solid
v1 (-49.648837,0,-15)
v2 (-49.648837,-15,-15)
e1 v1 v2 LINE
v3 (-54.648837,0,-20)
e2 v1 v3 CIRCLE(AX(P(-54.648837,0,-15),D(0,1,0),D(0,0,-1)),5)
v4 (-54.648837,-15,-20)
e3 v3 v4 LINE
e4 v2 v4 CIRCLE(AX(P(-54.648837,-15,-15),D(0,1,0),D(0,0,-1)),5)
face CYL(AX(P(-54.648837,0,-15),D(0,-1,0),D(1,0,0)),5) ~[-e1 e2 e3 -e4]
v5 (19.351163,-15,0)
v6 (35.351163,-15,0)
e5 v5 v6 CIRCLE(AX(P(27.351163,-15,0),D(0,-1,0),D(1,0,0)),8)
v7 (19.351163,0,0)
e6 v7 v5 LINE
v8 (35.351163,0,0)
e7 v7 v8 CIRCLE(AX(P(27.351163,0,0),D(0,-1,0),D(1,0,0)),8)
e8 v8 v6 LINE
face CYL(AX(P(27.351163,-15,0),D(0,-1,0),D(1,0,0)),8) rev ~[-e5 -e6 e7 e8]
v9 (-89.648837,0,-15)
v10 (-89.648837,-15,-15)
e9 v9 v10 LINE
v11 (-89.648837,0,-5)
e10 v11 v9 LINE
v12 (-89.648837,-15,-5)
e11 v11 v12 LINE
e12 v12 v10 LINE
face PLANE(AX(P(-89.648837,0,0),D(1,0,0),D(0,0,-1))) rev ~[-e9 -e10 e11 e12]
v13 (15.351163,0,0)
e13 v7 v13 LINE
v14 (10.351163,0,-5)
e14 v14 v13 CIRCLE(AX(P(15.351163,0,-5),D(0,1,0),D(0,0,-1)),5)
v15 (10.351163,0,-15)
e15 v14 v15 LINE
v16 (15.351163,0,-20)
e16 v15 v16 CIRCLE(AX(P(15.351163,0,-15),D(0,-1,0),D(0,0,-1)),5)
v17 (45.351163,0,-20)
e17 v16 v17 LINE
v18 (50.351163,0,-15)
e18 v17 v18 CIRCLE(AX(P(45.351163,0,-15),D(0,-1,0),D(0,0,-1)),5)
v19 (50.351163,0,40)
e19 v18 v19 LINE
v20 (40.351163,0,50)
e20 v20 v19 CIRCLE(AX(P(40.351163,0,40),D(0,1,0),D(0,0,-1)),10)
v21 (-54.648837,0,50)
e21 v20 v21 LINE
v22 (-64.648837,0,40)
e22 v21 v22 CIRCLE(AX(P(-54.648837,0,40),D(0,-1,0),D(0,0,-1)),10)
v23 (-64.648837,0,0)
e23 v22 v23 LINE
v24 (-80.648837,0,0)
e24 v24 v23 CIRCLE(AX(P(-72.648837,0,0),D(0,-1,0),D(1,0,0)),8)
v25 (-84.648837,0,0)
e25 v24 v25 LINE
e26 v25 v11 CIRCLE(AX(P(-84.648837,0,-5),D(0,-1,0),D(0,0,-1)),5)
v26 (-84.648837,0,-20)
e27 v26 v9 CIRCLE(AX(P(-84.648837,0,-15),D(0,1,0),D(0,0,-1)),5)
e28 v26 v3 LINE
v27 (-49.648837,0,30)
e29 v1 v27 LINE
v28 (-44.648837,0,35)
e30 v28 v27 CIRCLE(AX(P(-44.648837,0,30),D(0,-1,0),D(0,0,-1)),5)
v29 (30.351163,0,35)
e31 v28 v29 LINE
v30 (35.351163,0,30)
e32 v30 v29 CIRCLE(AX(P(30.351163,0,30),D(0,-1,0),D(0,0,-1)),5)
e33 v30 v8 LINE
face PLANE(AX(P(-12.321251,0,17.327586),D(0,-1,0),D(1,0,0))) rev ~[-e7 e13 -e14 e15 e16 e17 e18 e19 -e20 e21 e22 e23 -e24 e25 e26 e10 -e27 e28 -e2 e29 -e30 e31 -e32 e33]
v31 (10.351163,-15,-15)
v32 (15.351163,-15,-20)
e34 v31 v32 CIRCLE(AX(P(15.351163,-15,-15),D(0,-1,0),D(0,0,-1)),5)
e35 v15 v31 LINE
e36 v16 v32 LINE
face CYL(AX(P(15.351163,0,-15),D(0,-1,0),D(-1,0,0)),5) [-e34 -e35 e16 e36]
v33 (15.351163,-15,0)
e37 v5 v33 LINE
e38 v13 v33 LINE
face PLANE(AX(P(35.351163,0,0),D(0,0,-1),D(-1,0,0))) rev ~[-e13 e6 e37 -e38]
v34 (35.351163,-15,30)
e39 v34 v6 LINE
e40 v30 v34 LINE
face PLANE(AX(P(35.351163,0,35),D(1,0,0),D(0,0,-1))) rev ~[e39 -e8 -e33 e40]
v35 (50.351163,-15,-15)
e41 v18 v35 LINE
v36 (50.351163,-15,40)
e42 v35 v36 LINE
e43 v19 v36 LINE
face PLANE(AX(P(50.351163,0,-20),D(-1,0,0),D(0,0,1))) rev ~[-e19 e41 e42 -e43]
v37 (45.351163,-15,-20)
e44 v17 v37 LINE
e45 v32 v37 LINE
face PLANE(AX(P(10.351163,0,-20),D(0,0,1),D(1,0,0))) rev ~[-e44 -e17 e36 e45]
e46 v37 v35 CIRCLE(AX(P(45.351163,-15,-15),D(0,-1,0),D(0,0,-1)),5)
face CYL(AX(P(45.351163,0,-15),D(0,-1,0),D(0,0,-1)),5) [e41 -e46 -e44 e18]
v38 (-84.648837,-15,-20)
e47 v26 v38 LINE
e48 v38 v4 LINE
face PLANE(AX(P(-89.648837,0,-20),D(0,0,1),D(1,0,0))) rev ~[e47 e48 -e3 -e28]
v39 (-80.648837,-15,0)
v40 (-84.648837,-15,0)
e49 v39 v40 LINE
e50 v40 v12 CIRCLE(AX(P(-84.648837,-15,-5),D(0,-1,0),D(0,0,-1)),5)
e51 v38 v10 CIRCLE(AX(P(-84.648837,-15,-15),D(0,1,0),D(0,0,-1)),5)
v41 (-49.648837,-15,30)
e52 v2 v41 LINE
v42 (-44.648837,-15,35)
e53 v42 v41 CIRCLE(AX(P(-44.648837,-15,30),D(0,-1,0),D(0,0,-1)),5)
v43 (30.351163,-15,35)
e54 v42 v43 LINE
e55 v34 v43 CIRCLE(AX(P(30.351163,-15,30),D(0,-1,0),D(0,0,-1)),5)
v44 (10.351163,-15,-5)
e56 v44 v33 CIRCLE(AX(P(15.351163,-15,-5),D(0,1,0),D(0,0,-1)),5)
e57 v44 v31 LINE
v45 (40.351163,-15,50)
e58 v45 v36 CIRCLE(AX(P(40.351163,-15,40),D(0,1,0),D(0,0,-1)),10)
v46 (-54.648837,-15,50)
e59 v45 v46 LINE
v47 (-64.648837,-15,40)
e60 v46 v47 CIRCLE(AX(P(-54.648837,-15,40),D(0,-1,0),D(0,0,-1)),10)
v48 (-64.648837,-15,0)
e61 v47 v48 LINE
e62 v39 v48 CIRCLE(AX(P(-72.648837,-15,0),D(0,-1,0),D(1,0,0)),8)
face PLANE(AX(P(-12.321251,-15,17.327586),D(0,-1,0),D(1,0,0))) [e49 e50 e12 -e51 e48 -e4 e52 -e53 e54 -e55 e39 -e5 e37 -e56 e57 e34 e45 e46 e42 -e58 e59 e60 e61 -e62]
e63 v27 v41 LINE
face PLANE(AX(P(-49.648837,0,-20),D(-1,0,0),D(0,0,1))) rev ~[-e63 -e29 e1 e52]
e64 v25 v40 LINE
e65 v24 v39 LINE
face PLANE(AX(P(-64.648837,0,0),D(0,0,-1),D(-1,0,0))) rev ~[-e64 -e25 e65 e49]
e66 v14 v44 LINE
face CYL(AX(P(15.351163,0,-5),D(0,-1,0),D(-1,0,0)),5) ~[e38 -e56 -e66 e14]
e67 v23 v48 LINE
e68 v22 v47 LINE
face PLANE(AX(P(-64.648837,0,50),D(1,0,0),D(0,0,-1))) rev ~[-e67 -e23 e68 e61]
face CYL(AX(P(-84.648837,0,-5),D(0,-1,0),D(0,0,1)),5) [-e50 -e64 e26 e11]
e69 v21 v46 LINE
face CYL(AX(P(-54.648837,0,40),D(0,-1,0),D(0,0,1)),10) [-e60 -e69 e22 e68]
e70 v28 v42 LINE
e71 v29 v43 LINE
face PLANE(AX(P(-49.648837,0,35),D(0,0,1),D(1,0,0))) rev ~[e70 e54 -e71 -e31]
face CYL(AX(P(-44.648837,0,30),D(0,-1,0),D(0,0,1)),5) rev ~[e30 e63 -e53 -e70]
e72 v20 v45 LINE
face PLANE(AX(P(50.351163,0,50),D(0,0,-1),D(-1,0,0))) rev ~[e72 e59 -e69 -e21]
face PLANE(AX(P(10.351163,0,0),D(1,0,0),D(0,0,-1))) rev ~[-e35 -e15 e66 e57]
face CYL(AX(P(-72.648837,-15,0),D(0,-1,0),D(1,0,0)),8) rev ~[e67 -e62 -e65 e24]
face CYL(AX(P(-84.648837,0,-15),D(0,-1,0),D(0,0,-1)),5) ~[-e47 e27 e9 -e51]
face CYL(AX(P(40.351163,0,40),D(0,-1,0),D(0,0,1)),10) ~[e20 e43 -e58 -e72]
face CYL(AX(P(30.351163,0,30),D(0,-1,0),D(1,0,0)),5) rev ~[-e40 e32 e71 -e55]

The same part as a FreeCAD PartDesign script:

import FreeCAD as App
import Part
import Sketcher
from FreeCAD import Vector


def edges_at(feature, points):
    """Names of the edges that pass closest to the given points."""
    edges = feature.Shape.Edges
    near = lambda p: min(range(len(edges)), key=lambda i: edges[i].distToShape(Part.Vertex(*p))[0])
    return sorted({f"Edge{near(p) + 1}" for p in points})

doc = App.newDocument("Part")
body = doc.addObject("PartDesign::Body", "Body")

sketch1 = body.newObject("Sketcher::SketchObject", "Sketch")
sketch1.AttachmentSupport = (doc.getObject("XZ_Plane"), [""])
sketch1.MapMode = "FlatFace"
sketch1.addGeometry([
    Part.LineSegment(Vector(50, 50, 0), Vector(-65, 50, 0)),
    Part.LineSegment(Vector(-65, 50, 0), Vector(-65, 0, 0)),
    Part.LineSegment(Vector(-65, 0, 0), Vector(-90, 0, 0)),
    Part.LineSegment(Vector(-90, 0, 0), Vector(-90, -20, 0)),
    Part.LineSegment(Vector(-90, -20, 0), Vector(-50, -20, 0)),
    Part.LineSegment(Vector(-50, -20, 0), Vector(-50, 35, 0)),
    Part.LineSegment(Vector(-50, 35, 0), Vector(35, 35, 0)),
    Part.LineSegment(Vector(35, 35, 0), Vector(35, 0, 0)),
    Part.LineSegment(Vector(35, 0, 0), Vector(10, 0, 0)),
    Part.LineSegment(Vector(10, 0, 0), Vector(10, -20, 0)),
    Part.LineSegment(Vector(10, -20, 0), Vector(50, -20, 0)),
    Part.LineSegment(Vector(50, -20, 0), Vector(50, 50, 0)),
], False)
sketch1.addConstraint([
    Sketcher.Constraint("Coincident", 0, 2, 1, 1),
    Sketcher.Constraint("Coincident", 1, 2, 2, 1),
    Sketcher.Constraint("Coincident", 2, 2, 3, 1),
    Sketcher.Constraint("Coincident", 3, 2, 4, 1),
    Sketcher.Constraint("Coincident", 4, 2, 5, 1),
    Sketcher.Constraint("Coincident", 5, 2, 6, 1),
    Sketcher.Constraint("Coincident", 6, 2, 7, 1),
    Sketcher.Constraint("Coincident", 7, 2, 8, 1),
    Sketcher.Constraint("Coincident", 8, 2, 9, 1),
    Sketcher.Constraint("Coincident", 9, 2, 10, 1),
    Sketcher.Constraint("Coincident", 10, 2, 11, 1),
    Sketcher.Constraint("Coincident", 11, 2, 0, 1),
    Sketcher.Constraint("Horizontal", 0),
    Sketcher.Constraint("Vertical", 1),
    Sketcher.Constraint("Horizontal", 2),
    Sketcher.Constraint("Vertical", 3),
    Sketcher.Constraint("Horizontal", 4),
    Sketcher.Constraint("Vertical", 5),
    Sketcher.Constraint("Horizontal", 6),
    Sketcher.Constraint("Vertical", 7),
    Sketcher.Constraint("Horizontal", 8),
    Sketcher.Constraint("Vertical", 9),
    Sketcher.Constraint("Horizontal", 10),
    Sketcher.Constraint("Vertical", 11),
    Sketcher.Constraint("PointOnObject", 1, 2, -1),
    Sketcher.Constraint("PointOnObject", 7, 2, -1),
    Sketcher.Constraint("Horizontal", 4, 2, 9, 2),
    Sketcher.Constraint("Equal", 2, 8),
    Sketcher.Constraint("Equal", 4, 10),
    Sketcher.Constraint("DistanceX", 0, 2, 0, 1, 115.0),
    Sketcher.Constraint("DistanceX", 2, 2, 2, 1, 25.0),
    Sketcher.Constraint("DistanceX", 4, 1, 4, 2, 40.0),
    Sketcher.Constraint("DistanceY", 1, 2, 1, 1, 50.0),
    Sketcher.Constraint("DistanceY", 3, 2, 3, 1, 20.0),
    Sketcher.Constraint("DistanceY", 5, 1, 5, 2, 55.0),
    Sketcher.Constraint("DistanceX", 0, 2, -1, 1, 64.648837),
])
pad1 = body.newObject("PartDesign::Pad", "Pad")
pad1.Profile = sketch1
pad1.Length = 15

sketch2 = body.newObject("Sketcher::SketchObject", "Sketch001")
sketch2.AttachmentSupport = (doc.getObject("XZ_Plane"), [""])
sketch2.MapMode = "FlatFace"
sketch2.AttachmentOffset = App.Placement(Vector(0, 0, 15), App.Rotation())
sketch2.addGeometry([
    Part.Circle(Vector(-73, 0, 0), Vector(0, 0, 1), 8),
    Part.Circle(Vector(27, 0, 0), Vector(0, 0, 1), 8),
], False)
sketch2.addConstraint([
    Sketcher.Constraint("Equal", 0, 1),
    Sketcher.Constraint("PointOnObject", 0, 3, -1),
    Sketcher.Constraint("PointOnObject", 1, 3, -1),
    Sketcher.Constraint("Diameter", 0, 16.0),
    Sketcher.Constraint("DistanceX", 0, 3, 1, 3, 100.0),
    Sketcher.Constraint("DistanceX", 0, 3, -1, 1, 72.648837),
])
pocket1 = body.newObject("PartDesign::Pocket", "Pocket")
pocket1.Profile = sketch2
pocket1.Type = "ThroughAll"
doc.recompute()

fillet = body.newObject("PartDesign::Fillet", "Fillet")
fillet.Base = (pocket1, edges_at(pocket1, [(-64.649, -7.5, 50), (50.351, -7.5, 50)]))
fillet.Radius = 10
doc.recompute()

fillet2 = body.newObject("PartDesign::Fillet", "Fillet001")
fillet2.Base = (fillet, edges_at(fillet, [
    (-89.649, -7.5, 0),
    (10.351, -7.5, 0),
    (-49.649, -7.5, 35),
    (35.351, -7.5, 35),
]))
fillet2.Radius = 5
doc.recompute()

fillet3 = body.newObject("PartDesign::Fillet", "Fillet002")
fillet3.Base = (fillet2, edges_at(fillet2, [(-89.649, -7.5, -20), (10.351, -7.5, -20)]))
fillet3.Radius = 5
doc.recompute()

fillet4 = body.newObject("PartDesign::Fillet", "Fillet003")
fillet4.Base = (fillet3, edges_at(fillet3, [(-49.649, -7.5, -20), (50.351, -7.5, -20)]))
fillet4.Radius = 5

doc.recompute()
